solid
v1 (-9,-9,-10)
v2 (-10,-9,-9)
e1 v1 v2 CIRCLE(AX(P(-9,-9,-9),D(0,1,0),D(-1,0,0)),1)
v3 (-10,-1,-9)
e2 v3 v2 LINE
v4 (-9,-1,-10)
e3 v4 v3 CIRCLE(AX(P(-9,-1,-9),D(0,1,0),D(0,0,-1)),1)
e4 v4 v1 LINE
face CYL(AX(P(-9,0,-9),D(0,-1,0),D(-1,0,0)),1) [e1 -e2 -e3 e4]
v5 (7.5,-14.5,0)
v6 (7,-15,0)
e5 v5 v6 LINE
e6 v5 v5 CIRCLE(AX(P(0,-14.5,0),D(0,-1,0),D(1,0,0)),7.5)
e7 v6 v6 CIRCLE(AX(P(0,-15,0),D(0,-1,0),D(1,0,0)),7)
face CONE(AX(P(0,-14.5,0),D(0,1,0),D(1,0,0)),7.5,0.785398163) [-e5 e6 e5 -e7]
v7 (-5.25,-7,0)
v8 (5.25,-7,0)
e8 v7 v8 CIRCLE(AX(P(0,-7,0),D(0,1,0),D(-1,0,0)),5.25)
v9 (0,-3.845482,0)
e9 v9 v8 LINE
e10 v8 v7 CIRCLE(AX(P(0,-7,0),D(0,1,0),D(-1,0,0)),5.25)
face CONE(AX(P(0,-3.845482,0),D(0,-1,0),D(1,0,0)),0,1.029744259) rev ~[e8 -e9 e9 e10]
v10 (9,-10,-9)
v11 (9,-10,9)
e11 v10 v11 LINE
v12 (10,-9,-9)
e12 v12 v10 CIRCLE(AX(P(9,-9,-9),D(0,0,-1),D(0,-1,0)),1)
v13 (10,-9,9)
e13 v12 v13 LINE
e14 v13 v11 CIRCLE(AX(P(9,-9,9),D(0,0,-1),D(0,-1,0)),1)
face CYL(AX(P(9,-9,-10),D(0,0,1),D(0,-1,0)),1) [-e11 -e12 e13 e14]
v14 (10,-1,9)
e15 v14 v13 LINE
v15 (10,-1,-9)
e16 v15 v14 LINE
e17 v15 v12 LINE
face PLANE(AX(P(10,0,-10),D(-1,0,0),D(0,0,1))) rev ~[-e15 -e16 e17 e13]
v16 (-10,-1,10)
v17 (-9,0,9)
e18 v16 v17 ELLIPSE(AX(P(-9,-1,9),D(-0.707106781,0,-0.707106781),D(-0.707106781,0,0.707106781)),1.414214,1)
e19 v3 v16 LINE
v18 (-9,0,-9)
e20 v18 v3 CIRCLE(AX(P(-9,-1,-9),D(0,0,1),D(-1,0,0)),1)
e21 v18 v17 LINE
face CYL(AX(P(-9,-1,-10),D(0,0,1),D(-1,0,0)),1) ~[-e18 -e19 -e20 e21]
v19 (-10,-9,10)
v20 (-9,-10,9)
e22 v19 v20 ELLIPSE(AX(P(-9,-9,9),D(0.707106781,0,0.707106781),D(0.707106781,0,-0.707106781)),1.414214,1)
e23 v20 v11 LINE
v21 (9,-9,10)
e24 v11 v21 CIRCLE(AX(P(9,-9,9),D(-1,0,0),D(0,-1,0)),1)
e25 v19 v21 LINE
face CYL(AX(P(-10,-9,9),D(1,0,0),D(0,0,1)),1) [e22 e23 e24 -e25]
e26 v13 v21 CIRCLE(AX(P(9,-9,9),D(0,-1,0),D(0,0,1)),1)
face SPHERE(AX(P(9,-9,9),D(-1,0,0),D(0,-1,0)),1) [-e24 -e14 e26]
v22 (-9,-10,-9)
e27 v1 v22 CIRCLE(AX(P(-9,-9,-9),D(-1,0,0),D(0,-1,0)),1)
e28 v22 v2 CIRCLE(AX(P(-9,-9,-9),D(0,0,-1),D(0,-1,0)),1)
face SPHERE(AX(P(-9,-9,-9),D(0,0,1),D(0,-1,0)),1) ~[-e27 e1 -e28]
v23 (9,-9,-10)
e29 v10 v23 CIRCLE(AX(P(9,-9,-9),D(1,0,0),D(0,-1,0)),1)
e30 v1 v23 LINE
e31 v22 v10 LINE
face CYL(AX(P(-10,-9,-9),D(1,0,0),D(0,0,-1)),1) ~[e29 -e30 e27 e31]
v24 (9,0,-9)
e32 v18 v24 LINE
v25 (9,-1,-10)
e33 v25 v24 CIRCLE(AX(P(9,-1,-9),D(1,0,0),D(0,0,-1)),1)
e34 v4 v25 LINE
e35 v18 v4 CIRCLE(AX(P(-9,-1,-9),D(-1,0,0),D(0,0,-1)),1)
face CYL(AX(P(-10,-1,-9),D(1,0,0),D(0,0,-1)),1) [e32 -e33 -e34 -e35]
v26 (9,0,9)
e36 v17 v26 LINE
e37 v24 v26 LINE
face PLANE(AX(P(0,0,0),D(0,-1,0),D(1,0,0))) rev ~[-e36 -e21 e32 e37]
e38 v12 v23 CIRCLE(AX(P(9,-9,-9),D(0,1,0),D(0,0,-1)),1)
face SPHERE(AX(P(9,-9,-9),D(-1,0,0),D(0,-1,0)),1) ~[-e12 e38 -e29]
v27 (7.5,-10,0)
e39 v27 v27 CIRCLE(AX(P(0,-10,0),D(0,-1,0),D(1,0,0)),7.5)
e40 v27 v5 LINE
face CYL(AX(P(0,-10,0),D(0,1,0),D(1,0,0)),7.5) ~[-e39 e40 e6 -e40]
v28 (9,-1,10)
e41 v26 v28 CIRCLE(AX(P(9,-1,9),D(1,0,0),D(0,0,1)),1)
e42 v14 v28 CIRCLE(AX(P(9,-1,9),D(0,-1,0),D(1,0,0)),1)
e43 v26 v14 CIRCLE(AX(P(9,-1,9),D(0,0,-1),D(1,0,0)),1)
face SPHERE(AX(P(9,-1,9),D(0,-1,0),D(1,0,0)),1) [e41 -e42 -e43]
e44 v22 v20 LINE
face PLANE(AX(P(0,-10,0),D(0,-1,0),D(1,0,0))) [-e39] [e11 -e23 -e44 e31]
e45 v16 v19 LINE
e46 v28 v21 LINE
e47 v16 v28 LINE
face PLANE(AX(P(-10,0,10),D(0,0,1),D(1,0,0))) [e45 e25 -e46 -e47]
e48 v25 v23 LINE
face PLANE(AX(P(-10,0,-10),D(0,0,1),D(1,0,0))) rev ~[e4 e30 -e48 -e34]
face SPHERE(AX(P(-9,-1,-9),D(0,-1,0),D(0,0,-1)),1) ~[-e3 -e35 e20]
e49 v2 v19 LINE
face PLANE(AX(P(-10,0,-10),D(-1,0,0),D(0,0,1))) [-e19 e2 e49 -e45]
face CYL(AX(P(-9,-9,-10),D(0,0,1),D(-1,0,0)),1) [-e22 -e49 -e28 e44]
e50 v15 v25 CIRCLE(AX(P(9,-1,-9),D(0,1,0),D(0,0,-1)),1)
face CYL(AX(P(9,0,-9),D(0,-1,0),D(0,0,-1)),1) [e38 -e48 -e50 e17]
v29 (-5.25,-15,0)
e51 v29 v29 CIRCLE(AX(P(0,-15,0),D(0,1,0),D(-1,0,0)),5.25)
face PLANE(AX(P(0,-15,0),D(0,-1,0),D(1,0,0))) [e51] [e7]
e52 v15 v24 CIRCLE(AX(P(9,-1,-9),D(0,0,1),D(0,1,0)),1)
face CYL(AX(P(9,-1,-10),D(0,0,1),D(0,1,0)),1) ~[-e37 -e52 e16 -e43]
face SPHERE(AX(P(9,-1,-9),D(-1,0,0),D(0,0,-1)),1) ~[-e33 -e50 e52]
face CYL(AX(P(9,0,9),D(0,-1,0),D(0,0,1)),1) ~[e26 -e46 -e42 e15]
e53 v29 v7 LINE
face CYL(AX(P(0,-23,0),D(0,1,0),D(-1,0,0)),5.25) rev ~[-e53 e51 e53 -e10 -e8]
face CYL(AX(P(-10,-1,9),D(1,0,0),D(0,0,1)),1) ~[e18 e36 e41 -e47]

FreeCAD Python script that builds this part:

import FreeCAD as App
import Part
import Sketcher
from FreeCAD import Vector


def edges_at(feature, points):
    """Names of the edges that pass closest to the given points."""
    edges = feature.Shape.Edges
    near = lambda p: min(range(len(edges)), key=lambda i: edges[i].distToShape(Part.Vertex(*p))[0])
    return sorted({f"Edge{near(p) + 1}" for p in points})


def add_polygon(sketch, points):
    """Adds a closed chain of lines whose ends are joined by coincident constraints."""
    first, n = sketch.GeometryCount, len(points)
    for a, b in zip(points, points[1:] + points[:1]):
        sketch.addGeometry(Part.LineSegment(App.Vector(*a, 0), App.Vector(*b, 0)), False)
    for i in range(n):
        sketch.addConstraint(Sketcher.Constraint("Coincident", first + i, 2, first + (i + 1) % n, 1))

doc = App.newDocument("Part")
body = doc.addObject("PartDesign::Body", "Body")

# Sketch on XZ plane
sketch1 = body.newObject("Sketcher::SketchObject", "Sketch")
sketch1.AttachmentSupport = (doc.getObject("XZ_Plane"), [""])
sketch1.MapMode = "FlatFace"
add_polygon(sketch1, [(-10, 10), (-10, -10), (10, -10), (10, 10)])  # lines 0-3
sketch1.addConstraint(Sketcher.Constraint("Vertical", 0))
sketch1.addConstraint(Sketcher.Constraint("Horizontal", 1))
sketch1.addConstraint(Sketcher.Constraint("Vertical", 2))
sketch1.addConstraint(Sketcher.Constraint("Horizontal", 3))
sketch1.addConstraint(Sketcher.Constraint("Symmetric", 0, 2, 2, 2, -1, 1))
sketch1.addConstraint(Sketcher.Constraint("Equal", 3, 0))
sketch1.addConstraint(Sketcher.Constraint("DistanceX", 1, 1, 1, 2, 20.0))
pad1 = body.newObject("PartDesign::Pad", "Pad")
pad1.Profile = sketch1
pad1.Length = 10

# Sketch on XZ plane
sketch2 = body.newObject("Sketcher::SketchObject", "Sketch001")
sketch2.AttachmentSupport = (doc.getObject("XZ_Plane"), [""])
sketch2.MapMode = "FlatFace"
sketch2.AttachmentOffset = App.Placement(Vector(0, 0, 10), App.Rotation())
sketch2.addGeometry(Part.Circle(Vector(0, 0, 0), Vector(0, 0, 1), 7.5), False)
sketch2.addConstraint(Sketcher.Constraint("Coincident", 0, 3, -1, 1))
sketch2.addConstraint(Sketcher.Constraint("Diameter", 0, 15.0))
pad2 = body.newObject("PartDesign::Pad", "Pad001")
pad2.Profile = sketch2
pad2.Length = 5

# Sketch on XZ plane
sketch3 = body.newObject("Sketcher::SketchObject", "Sketch002")
sketch3.AttachmentSupport = (doc.getObject("XZ_Plane"), [""])
sketch3.MapMode = "FlatFace"
sketch3.AttachmentOffset = App.Placement(Vector(0, 0, 15), App.Rotation())
sketch3.addGeometry(Part.Circle(Vector(0, 0, 0), Vector(0, 0, 1), 5.25), False)
sketch3.addConstraint(Sketcher.Constraint("Coincident", 0, 3, -1, 1))
sketch3.addConstraint(Sketcher.Constraint("Diameter", 0, 10.5))
doc.recompute()
hole = body.newObject("PartDesign::Hole", "Hole")
hole.Profile = sketch3
hole.ThreadType = "None"
hole.Diameter = 10.5
hole.DepthType = "Dimension"
hole.Depth = 8
hole.DrillPoint = "Angled"
hole.DrillPointAngle = 118
doc.recompute()

fillet = body.newObject("PartDesign::Fillet", "Fillet")
fillet.Base = (hole, edges_at(hole, [
    (0, -10, 10),
    (-10, -10, 0),
    (0, -10, -10),
    (10, -10, 0),
    (-10, -5, -10),
    (0, 0, -10),
    (10, -5, -10),
    (10, -5, 10),
    (10, 0, 0),
    (-10, 0, 0),
    (0, 0, 10),
]))
fillet.Radius = 1
doc.recompute()

chamfer = body.newObject("PartDesign::Chamfer", "Chamfer")
chamfer.Base = (fillet, edges_at(fillet, [(-7.5, -15, 0)]))
chamfer.Size = 0.5

doc.recompute()
